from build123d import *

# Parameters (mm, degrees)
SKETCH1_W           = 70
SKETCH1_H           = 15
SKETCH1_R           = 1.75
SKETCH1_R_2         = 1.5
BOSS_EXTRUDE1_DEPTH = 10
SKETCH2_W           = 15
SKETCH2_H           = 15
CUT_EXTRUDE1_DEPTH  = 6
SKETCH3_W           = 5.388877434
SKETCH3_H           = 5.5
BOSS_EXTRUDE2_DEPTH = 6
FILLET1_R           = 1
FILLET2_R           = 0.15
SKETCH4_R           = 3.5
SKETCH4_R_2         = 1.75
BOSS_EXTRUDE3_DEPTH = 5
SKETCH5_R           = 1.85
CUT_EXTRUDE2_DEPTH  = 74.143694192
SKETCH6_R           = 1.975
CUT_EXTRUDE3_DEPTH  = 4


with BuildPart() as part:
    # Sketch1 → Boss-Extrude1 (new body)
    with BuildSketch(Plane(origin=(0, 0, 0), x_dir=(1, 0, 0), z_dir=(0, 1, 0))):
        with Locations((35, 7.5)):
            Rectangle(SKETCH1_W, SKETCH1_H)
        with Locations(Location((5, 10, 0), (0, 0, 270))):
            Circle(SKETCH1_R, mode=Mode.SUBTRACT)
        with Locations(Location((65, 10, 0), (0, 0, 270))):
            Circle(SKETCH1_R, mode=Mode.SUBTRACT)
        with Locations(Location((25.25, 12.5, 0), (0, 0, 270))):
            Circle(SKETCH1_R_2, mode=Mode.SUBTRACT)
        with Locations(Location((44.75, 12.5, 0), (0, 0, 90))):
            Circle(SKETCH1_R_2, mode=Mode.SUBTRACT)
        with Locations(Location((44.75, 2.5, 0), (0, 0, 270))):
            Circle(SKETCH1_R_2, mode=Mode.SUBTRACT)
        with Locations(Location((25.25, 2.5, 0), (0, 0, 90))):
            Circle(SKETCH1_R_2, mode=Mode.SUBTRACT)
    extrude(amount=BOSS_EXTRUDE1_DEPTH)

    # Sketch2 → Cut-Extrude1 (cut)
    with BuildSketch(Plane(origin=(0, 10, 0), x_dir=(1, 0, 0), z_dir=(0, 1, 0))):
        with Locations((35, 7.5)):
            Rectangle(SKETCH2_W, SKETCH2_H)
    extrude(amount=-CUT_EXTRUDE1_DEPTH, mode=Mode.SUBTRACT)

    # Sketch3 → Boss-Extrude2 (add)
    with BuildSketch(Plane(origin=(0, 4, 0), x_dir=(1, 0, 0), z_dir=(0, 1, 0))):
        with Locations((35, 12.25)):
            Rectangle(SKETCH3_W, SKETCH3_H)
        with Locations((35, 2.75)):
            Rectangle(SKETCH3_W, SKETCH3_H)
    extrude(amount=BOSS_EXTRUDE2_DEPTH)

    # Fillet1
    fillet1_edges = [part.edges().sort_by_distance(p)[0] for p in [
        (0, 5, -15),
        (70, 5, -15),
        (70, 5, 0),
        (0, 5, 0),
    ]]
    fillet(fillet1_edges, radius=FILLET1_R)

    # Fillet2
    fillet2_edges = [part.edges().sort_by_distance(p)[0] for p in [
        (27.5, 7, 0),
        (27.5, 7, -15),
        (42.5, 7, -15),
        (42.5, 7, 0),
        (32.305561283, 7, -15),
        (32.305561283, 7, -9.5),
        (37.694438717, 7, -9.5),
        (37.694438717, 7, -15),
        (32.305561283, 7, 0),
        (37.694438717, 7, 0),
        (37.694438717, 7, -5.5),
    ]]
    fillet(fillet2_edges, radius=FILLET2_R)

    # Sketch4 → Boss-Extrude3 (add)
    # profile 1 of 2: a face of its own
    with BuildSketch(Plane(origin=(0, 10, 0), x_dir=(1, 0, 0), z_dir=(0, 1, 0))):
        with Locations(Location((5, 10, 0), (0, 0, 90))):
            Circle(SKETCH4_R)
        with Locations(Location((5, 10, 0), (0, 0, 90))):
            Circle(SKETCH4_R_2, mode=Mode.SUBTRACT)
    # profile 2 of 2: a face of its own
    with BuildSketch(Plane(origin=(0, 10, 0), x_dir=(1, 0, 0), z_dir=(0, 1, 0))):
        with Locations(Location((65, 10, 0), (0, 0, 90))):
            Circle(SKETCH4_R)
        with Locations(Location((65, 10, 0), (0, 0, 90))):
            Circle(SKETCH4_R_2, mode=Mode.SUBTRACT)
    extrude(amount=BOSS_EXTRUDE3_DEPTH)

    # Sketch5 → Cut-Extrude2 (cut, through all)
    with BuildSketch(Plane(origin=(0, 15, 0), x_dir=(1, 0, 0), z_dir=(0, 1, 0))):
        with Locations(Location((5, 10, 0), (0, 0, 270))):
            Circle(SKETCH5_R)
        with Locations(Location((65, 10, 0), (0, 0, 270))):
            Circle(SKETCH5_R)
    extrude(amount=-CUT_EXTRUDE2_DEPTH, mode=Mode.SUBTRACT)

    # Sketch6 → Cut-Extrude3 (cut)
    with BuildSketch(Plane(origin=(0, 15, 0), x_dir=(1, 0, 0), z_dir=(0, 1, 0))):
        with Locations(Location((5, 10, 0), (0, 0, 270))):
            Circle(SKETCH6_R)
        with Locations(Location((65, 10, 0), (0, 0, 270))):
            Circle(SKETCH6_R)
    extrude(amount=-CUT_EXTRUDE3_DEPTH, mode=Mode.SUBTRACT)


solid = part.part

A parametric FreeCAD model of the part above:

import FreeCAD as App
import Part
import Sketcher
from FreeCAD import Vector


def edges_at(feature, points):
    """Names of the edges that pass closest to the given points."""
    edges = feature.Shape.Edges
    near = lambda p: min(range(len(edges)), key=lambda i: edges[i].distToShape(Part.Vertex(*p))[0])
    return sorted({f"Edge{near(p) + 1}" for p in points})

doc = App.newDocument("Part")
body = doc.addObject("PartDesign::Body", "Body")

# Sketch on XZ plane
sketch1 = doc.addObject("Sketcher::SketchObject", "Sketch")
body.addObject(sketch1)
sketch1.AttachmentSupport = (doc.XZ_Plane, [""])
sketch1.MapMode = "FlatFace"
sketch1.addGeometry([
    Part.LineSegment(Vector(0, -15, 0), Vector(0, 0, 0)),  # 0
    Part.LineSegment(Vector(0, 0, 0), Vector(70, 0, 0)),  # 1
    Part.LineSegment(Vector(70, 0, 0), Vector(70, -15, 0)),  # 2
    Part.LineSegment(Vector(70, -15, 0), Vector(0, -15, 0)),  # 3
    Part.Circle(Vector(25.2, -2.5, 0), Vector(0, 0, 1), 1.5),  # 4
    Part.Circle(Vector(44.8, -2.5, 0), Vector(0, 0, 1), 1.5),  # 5
    Part.Circle(Vector(5, -10, 0), Vector(0, 0, 1), 1.8),  # 6
    Part.Circle(Vector(25.2, -12.5, 0), Vector(0, 0, 1), 1.5),  # 7
    Part.Circle(Vector(65, -10, 0), Vector(0, 0, 1), 1.8),  # 8
    Part.Circle(Vector(44.8, -12.5, 0), Vector(0, 0, 1), 1.5),  # 9
], False)
sketch1.addConstraint([
    Sketcher.Constraint("Coincident", 0, 2, 1, 1),
    Sketcher.Constraint("Coincident", 1, 2, 2, 1),
    Sketcher.Constraint("Coincident", 2, 2, 3, 1),
    Sketcher.Constraint("Coincident", 3, 2, 0, 1),
    Sketcher.Constraint("Vertical", 0),
    Sketcher.Constraint("Horizontal", 1),
    Sketcher.Constraint("Vertical", 2),
    Sketcher.Constraint("Horizontal", 3),
    Sketcher.Constraint("Coincident", 0, 2, -1, 1),
    Sketcher.Constraint("Equal", 4, 5),
    Sketcher.Constraint("Equal", 5, 7),
    Sketcher.Constraint("Equal", 6, 8),
    Sketcher.Constraint("Equal", 7, 9),
    Sketcher.Constraint("Horizontal", 4, 3, 5, 3),
    Sketcher.Constraint("Horizontal", 6, 3, 8, 3),
    Sketcher.Constraint("Horizontal", 7, 3, 9, 3),
    Sketcher.Constraint("Vertical", 4, 3, 7, 3),
    Sketcher.Constraint("Vertical", 5, 3, 9, 3),
    Sketcher.Constraint("Diameter", 4, 3.0),
    Sketcher.Constraint("Diameter", 6, 3.5),
    Sketcher.Constraint("DistanceX", 1, 1, 1, 2, 70.0),
    Sketcher.Constraint("DistanceY", 0, 1, 0, 2, 15.0),
    Sketcher.Constraint("DistanceX", -1, 1, 6, 3, 5.0),
    Sketcher.Constraint("DistanceY", 6, 3, -1, 1, 10.0),
    Sketcher.Constraint("DistanceX", -1, 1, 8, 3, 65.0),
    Sketcher.Constraint("DistanceY", 7, 3, 4, 3, 10.0),
    Sketcher.Constraint("DistanceY", 4, 3, -1, 1, 2.5),
    Sketcher.Constraint("DistanceX", 4, 3, 5, 3, 19.5),
    Sketcher.Constraint("DistanceX", -1, 1, 4, 3, 25.25),
])
pad1 = doc.addObject("PartDesign::Pad", "Pad")
body.addObject(pad1)
pad1.Profile = sketch1
pad1.Length = 10
pad1.Reversed = True

# Sketch on XZ plane
sketch2 = doc.addObject("Sketcher::SketchObject", "Sketch001")
body.addObject(sketch2)
sketch2.AttachmentSupport = (doc.XZ_Plane, [""])
sketch2.MapMode = "FlatFace"
sketch2.AttachmentOffset = App.Placement(Vector(0, 0, -10), App.Rotation())
sketch2.addGeometry([
    Part.LineSegment(Vector(28, -15, 0), Vector(28, 0, 0)),
    Part.LineSegment(Vector(28, 0, 0), Vector(42, 0, 0)),
    Part.LineSegment(Vector(42, 0, 0), Vector(42, -15, 0)),
    Part.LineSegment(Vector(42, -15, 0), Vector(28, -15, 0)),
], False)
sketch2.addConstraint([
    Sketcher.Constraint("Coincident", 0, 2, 1, 1),
    Sketcher.Constraint("Coincident", 1, 2, 2, 1),
    Sketcher.Constraint("Coincident", 2, 2, 3, 1),
    Sketcher.Constraint("Coincident", 3, 2, 0, 1),
    Sketcher.Constraint("Vertical", 0),
    Sketcher.Constraint("Horizontal", 1),
    Sketcher.Constraint("Vertical", 2),
    Sketcher.Constraint("Horizontal", 3),
    Sketcher.Constraint("PointOnObject", 0, 2, -1),
    Sketcher.Constraint("Equal", 3, 0),
    Sketcher.Constraint("DistanceX", 1, 1, 1, 2, 15.0),
    Sketcher.Constraint("DistanceX", -1, 1, 0, 2, 27.5),
])
pocket1 = doc.addObject("PartDesign::Pocket", "Pocket")
body.addObject(pocket1)
pocket1.Profile = sketch2
pocket1.Length = 6
pocket1.Reversed = True

# Sketch on XZ plane
sketch3 = doc.addObject("Sketcher::SketchObject", "Sketch002")
body.addObject(sketch3)
sketch3.AttachmentSupport = (doc.XZ_Plane, [""])
sketch3.MapMode = "FlatFace"
sketch3.AttachmentOffset = App.Placement(Vector(0, 0, -4), App.Rotation())
sketch3.addGeometry([
    Part.LineSegment(Vector(32, -15, 0), Vector(32, -10, 0)),  # 0
    Part.LineSegment(Vector(32, -10, 0), Vector(38, -10, 0)),  # 1
    Part.LineSegment(Vector(38, -10, 0), Vector(38, -15, 0)),  # 2
    Part.LineSegment(Vector(38, -15, 0), Vector(32, -15, 0)),  # 3
    Part.LineSegment(Vector(32, -6, 0), Vector(32, 0, 0)),  # 4
    Part.LineSegment(Vector(32, 0, 0), Vector(38, 0, 0)),  # 5
    Part.LineSegment(Vector(38, 0, 0), Vector(38, -6, 0)),  # 6
    Part.LineSegment(Vector(38, -6, 0), Vector(32, -6, 0)),  # 7
], False)
sketch3.addConstraint([
    Sketcher.Constraint("Coincident", 0, 2, 1, 1),
    Sketcher.Constraint("Coincident", 1, 2, 2, 1),
    Sketcher.Constraint("Coincident", 2, 2, 3, 1),
    Sketcher.Constraint("Coincident", 3, 2, 0, 1),
    Sketcher.Constraint("Coincident", 4, 2, 5, 1),
    Sketcher.Constraint("Coincident", 5, 2, 6, 1),
    Sketcher.Constraint("Coincident", 6, 2, 7, 1),
    Sketcher.Constraint("Coincident", 7, 2, 4, 1),
    Sketcher.Constraint("Vertical", 0),
    Sketcher.Constraint("Horizontal", 1),
    Sketcher.Constraint("Vertical", 2),
    Sketcher.Constraint("Horizontal", 3),
    Sketcher.Constraint("Vertical", 4),
    Sketcher.Constraint("Horizontal", 5),
    Sketcher.Constraint("Vertical", 6),
    Sketcher.Constraint("Horizontal", 7),
    Sketcher.Constraint("PointOnObject", 4, 2, -1),
    Sketcher.Constraint("Vertical", 3, 2, 4, 2),
    Sketcher.Constraint("Vertical", 2, 2, 5, 2),
    Sketcher.Constraint("Equal", 2, 4),
    Sketcher.Constraint("DistanceY", 0, 1, 0, 2, 5.5),
    Sketcher.Constraint("DistanceY", 2, 2, -1, 1, 15.0),
    Sketcher.Constraint("DistanceX", 1, 1, 1, 2, 5.388877),
    Sketcher.Constraint("DistanceX", -1, 1, 0, 2, 32.305561),
])
pad2 = doc.addObject("PartDesign::Pad", "Pad001")
body.addObject(pad2)
pad2.Profile = sketch3
pad2.Length = 6
pad2.Reversed = True
doc.recompute()

fillet = doc.addObject("PartDesign::Fillet", "Fillet")
body.addObject(fillet)
fillet.Base = (pad2, edges_at(pad2, [
    (0, 5, -15),
    (70, 5, -15),
    (70, 5, 0),
    (0, 5, 0),
]))
fillet.Radius = 1
doc.recompute()

fillet2 = doc.addObject("PartDesign::Fillet", "Fillet001")
body.addObject(fillet2)
fillet2.Base = (fillet, edges_at(fillet, [
    (27.5, 7, 0),
    (27.5, 7, -15),
    (42.5, 7, -15),
    (42.5, 7, 0),
    (32.306, 7, -15),
    (32.306, 7, -9.5),
    (37.694, 7, -9.5),
    (37.694, 7, -15),
    (32.306, 7, 0),
    (37.694, 7, 0),
    (37.694, 7, -5.5),
]))
fillet2.Radius = 0.15

# Sketch on XZ plane
sketch4 = doc.addObject("Sketcher::SketchObject", "Sketch003")
body.addObject(sketch4)
sketch4.AttachmentSupport = (doc.XZ_Plane, [""])
sketch4.MapMode = "FlatFace"
sketch4.AttachmentOffset = App.Placement(Vector(0, 0, -10), App.Rotation())
sketch4.addGeometry([
    Part.Circle(Vector(5, -10, 0), Vector(0, 0, 1), 3.5),
    Part.Circle(Vector(5, -10, 0), Vector(0, 0, 1), 1.8),
    Part.Circle(Vector(65, -10, 0), Vector(0, 0, 1), 3.5),
    Part.Circle(Vector(65, -10, 0), Vector(0, 0, 1), 1.8),
], False)
sketch4.addConstraint([
    Sketcher.Constraint("Coincident", 1, 3, 0, 3),
    Sketcher.Constraint("Coincident", 3, 3, 2, 3),
    Sketcher.Constraint("Equal", 0, 2),
    Sketcher.Constraint("Equal", 1, 3),
    Sketcher.Constraint("Horizontal", 1, 3, 2, 3),
    Sketcher.Constraint("Diameter", 0, 7.0),
    Sketcher.Constraint("Diameter", 1, 3.5),
    Sketcher.Constraint("DistanceX", -1, 1, 0, 3, 5.0),
    Sketcher.Constraint("DistanceY", 0, 3, -1, 1, 10.0),
    Sketcher.Constraint("DistanceX", -1, 1, 2, 3, 65.0),
])
pad3 = doc.addObject("PartDesign::Pad", "Pad002")
body.addObject(pad3)
pad3.Profile = sketch4
pad3.Length = 5
pad3.Reversed = True

# Sketch on XZ plane
sketch5 = doc.addObject("Sketcher::SketchObject", "Sketch004")
body.addObject(sketch5)
sketch5.AttachmentSupport = (doc.XZ_Plane, [""])
sketch5.MapMode = "FlatFace"
sketch5.AttachmentOffset = App.Placement(Vector(0, 0, -15), App.Rotation())
sketch5.addGeometry([
    Part.Circle(Vector(5, -10, 0), Vector(0, 0, 1), 1.9),
    Part.Circle(Vector(65, -10, 0), Vector(0, 0, 1), 1.9),
], False)
sketch5.addConstraint([
    Sketcher.Constraint("Equal", 0, 1),
    Sketcher.Constraint("Horizontal", 0, 3, 1, 3),
    Sketcher.Constraint("Diameter", 0, 3.7),
    Sketcher.Constraint("DistanceX", -1, 1, 0, 3, 5.0),
    Sketcher.Constraint("DistanceY", 0, 3, -1, 1, 10.0),
    Sketcher.Constraint("DistanceX", -1, 1, 1, 3, 65.0),
])
pocket2 = doc.addObject("PartDesign::Pocket", "Pocket001")
body.addObject(pocket2)
pocket2.Profile = sketch5
pocket2.Type = "ThroughAll"
pocket2.Reversed = True

# Sketch on XZ plane
sketch6 = doc.addObject("Sketcher::SketchObject", "Sketch005")
body.addObject(sketch6)
sketch6.AttachmentSupport = (doc.XZ_Plane, [""])
sketch6.MapMode = "FlatFace"
sketch6.AttachmentOffset = App.Placement(Vector(0, 0, -15), App.Rotation())
sketch6.addGeometry([
    Part.Circle(Vector(5, -10, 0), Vector(0, 0, 1), 2),
    Part.Circle(Vector(65, -10, 0), Vector(0, 0, 1), 2),
], False)
sketch6.addConstraint([
    Sketcher.Constraint("Equal", 0, 1),
    Sketcher.Constraint("Horizontal", 0, 3, 1, 3),
    Sketcher.Constraint("Diameter", 0, 3.95),
    Sketcher.Constraint("DistanceX", -1, 1, 0, 3, 5.0),
    Sketcher.Constraint("DistanceY", 0, 3, -1, 1, 10.0),
    Sketcher.Constraint("DistanceX", -1, 1, 1, 3, 65.0),
])
pocket3 = doc.addObject("PartDesign::Pocket", "Pocket002")
body.addObject(pocket3)
pocket3.Profile = sketch6
pocket3.Length = 4
pocket3.Reversed = True

doc.recompute()
